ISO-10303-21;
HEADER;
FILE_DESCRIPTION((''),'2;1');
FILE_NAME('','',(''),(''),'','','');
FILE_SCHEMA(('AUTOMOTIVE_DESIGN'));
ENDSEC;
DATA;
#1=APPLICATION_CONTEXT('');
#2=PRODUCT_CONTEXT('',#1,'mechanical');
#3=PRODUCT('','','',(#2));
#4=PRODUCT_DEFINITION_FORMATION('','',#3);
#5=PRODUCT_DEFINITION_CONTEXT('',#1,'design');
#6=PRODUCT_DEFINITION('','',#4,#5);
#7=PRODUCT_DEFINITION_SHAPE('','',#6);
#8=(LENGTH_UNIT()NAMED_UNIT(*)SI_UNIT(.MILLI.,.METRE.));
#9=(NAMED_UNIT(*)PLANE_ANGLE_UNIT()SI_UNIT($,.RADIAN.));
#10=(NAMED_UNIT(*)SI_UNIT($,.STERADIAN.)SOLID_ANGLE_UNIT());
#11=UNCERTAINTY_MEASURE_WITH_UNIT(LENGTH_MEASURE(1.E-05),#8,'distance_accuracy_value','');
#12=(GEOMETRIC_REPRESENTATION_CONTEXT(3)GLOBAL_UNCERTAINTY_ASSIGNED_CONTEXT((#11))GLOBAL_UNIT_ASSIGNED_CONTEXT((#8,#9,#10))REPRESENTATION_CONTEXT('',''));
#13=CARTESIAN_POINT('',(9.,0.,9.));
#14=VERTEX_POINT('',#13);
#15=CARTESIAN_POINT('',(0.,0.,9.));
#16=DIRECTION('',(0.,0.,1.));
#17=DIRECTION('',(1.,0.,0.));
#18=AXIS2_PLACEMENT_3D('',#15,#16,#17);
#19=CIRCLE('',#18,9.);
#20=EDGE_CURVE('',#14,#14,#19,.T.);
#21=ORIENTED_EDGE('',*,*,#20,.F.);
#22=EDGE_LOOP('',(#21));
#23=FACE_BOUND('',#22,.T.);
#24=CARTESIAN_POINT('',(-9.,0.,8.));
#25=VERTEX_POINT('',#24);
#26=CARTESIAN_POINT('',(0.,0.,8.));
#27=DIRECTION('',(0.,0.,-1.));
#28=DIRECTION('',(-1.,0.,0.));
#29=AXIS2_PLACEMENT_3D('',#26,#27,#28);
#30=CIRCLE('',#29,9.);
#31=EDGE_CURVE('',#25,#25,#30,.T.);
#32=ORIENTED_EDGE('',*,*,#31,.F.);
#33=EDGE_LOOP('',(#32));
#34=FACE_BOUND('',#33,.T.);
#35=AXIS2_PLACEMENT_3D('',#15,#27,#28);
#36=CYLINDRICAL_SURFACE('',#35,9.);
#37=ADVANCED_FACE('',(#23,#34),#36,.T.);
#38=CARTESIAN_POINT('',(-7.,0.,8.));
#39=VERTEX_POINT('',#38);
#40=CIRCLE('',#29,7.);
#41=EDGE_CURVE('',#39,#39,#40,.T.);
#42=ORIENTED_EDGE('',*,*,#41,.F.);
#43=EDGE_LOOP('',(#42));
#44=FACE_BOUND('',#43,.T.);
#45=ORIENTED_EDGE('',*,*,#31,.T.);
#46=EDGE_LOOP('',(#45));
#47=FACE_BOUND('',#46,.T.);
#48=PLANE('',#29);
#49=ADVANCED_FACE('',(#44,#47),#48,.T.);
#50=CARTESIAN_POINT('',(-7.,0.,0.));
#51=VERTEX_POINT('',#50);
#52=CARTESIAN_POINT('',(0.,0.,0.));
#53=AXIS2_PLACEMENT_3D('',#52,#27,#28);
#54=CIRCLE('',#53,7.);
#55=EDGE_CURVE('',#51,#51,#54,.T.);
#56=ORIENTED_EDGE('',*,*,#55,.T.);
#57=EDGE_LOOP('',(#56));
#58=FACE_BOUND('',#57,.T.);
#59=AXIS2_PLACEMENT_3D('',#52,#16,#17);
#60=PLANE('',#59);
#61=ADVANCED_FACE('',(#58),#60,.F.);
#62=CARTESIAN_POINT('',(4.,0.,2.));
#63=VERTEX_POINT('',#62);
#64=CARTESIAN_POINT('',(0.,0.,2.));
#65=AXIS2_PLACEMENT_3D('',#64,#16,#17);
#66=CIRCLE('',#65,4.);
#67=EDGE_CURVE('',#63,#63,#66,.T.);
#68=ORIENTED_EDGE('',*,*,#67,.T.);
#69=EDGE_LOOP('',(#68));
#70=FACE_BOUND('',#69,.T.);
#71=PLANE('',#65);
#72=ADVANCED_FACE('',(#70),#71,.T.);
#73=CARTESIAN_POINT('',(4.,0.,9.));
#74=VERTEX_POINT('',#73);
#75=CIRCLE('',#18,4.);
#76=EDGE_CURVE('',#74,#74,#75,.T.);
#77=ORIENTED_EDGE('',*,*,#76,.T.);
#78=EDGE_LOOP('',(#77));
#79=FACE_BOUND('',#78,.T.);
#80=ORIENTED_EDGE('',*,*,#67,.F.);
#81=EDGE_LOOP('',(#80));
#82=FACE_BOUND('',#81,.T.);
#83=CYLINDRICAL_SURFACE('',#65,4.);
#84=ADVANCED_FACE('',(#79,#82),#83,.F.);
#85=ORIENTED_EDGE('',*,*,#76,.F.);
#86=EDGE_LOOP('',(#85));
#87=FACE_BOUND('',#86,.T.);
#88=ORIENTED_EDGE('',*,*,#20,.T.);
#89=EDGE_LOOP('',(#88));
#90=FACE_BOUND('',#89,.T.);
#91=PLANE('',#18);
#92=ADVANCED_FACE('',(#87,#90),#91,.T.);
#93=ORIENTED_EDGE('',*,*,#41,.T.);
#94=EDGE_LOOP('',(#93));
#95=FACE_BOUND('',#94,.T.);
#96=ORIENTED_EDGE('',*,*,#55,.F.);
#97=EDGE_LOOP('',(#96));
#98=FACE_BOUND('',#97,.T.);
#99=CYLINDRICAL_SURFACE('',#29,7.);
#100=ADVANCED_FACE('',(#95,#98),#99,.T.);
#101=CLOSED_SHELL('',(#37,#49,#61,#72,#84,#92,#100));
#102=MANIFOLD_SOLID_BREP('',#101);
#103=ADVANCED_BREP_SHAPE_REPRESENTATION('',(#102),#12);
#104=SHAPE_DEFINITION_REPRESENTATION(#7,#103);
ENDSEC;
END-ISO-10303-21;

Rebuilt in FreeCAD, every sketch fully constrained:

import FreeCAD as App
import Part
import Sketcher
Q = App.Units.Quantity

doc = App.newDocument("Part")
body = doc.addObject("PartDesign::Body", "Body")

sketch1 = body.newObject("Sketcher::SketchObject", "Sketch")
sketch1.AttachmentSupport = (doc.getObject("XY_Plane"), [""])
sketch1.MapMode = "FlatFace"
sketch1.addGeometry(Part.Circle(App.Vector(0, 0, 0), App.Vector(0, 0, 1), 9), False)
sketch1.addConstraint(Sketcher.Constraint("Coincident", 0, 3, -1, 1))
sketch1.addConstraint(Sketcher.Constraint("Diameter", 0, Q("18 mm")))
pad1 = body.newObject("PartDesign::Pad", "Pad")
pad1.Profile = sketch1
pad1.Length = 9

sketch2 = body.newObject("Sketcher::SketchObject", "Sketch001")
sketch2.AttachmentSupport = (doc.getObject("XY_Plane"), [""])
sketch2.MapMode = "FlatFace"
sketch2.AttachmentOffset = App.Placement(App.Vector(0, 0, 9), App.Rotation())
sketch2.addGeometry(Part.Circle(App.Vector(0, 0, 0), App.Vector(0, 0, 1), 4), False)
sketch2.addConstraint(Sketcher.Constraint("Coincident", 0, 3, -1, 1))
sketch2.addConstraint(Sketcher.Constraint("Diameter", 0, Q("8 mm")))
pocket1 = body.newObject("PartDesign::Pocket", "Pocket")
pocket1.Profile = sketch2
pocket1.Length = 7

sketch3 = body.newObject("Sketcher::SketchObject", "Sketch002")
sketch3.AttachmentSupport = (doc.getObject("XY_Plane"), [""])
sketch3.MapMode = "FlatFace"
sketch3.addGeometry(Part.Circle(App.Vector(0, 0, 0), App.Vector(0, 0, 1), 9), False)
sketch3.addGeometry(Part.Circle(App.Vector(0, 0, 0), App.Vector(0, 0, 1), 7), False)
sketch3.addConstraint(Sketcher.Constraint("Coincident", 0, 3, -1, 1))
sketch3.addConstraint(Sketcher.Constraint("Coincident", 1, 3, -1, 1))
sketch3.addConstraint(Sketcher.Constraint("Diameter", 0, Q("18 mm")))
sketch3.addConstraint(Sketcher.Constraint("Diameter", 1, Q("14 mm")))
pocket2 = body.newObject("PartDesign::Pocket", "Pocket001")
pocket2.Profile = sketch3
pocket2.Length = 8
pocket2.Reversed = True

doc.recompute()
